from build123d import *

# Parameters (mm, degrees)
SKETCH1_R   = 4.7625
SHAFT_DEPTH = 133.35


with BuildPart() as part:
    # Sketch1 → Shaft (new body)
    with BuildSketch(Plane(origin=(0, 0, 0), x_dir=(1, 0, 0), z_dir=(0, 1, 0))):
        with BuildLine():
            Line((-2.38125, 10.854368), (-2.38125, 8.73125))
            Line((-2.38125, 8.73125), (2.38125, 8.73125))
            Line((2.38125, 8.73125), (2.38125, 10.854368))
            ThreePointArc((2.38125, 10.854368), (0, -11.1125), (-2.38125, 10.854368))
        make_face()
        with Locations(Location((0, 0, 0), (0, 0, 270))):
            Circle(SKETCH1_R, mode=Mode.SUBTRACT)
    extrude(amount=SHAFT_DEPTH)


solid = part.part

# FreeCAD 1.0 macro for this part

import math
import FreeCAD as App
import Part
import Sketcher
Q = App.Units.Quantity

doc = App.newDocument("Part")
params = doc.addObject("Spreadsheet::Sheet", "Params")
for row, (alias, value) in enumerate([
    ("sketch1_diameter", "0.375 in"),
    ("sketch1_radius", "0.4375 in"),
    ("sketch1_width", "0.1875 in"),
    ("pad1_length", "5.25 in"),
], start=1):
    params.set(f"A{row}", alias)
    params.set(f"B{row}", "=" + value)
    params.setAlias(f"B{row}", alias)

body = doc.addObject("PartDesign::Body", "Body")

sketch1 = body.newObject("Sketcher::SketchObject", "Sketch")
sketch1.AttachmentSupport = (doc.getObject("XZ_Plane"), [""])
sketch1.MapMode = "FlatFace"
sketch1.addGeometry(Part.LineSegment(App.Vector(-2.4, -8.7, 0), App.Vector(-2.4, -10.9, 0)), False)
sketch1.addGeometry(Part.ArcOfCircle(Part.Circle(App.Vector(0, 0, 0), App.Vector(0, 0, 1), 11.1), math.radians(-78), math.radians(258)), False)
sketch1.addGeometry(Part.LineSegment(App.Vector(2.4, -10.9, 0), App.Vector(2.4, -8.7, 0)), False)
sketch1.addGeometry(Part.LineSegment(App.Vector(2.4, -8.7, 0), App.Vector(-2.4, -8.7, 0)), False)
sketch1.addGeometry(Part.Circle(App.Vector(0, 0, 0), App.Vector(0, 0, 1), 4.8), False)
sketch1.addConstraint(Sketcher.Constraint("Coincident", 0, 2, 1, 2))
sketch1.addConstraint(Sketcher.Constraint("Coincident", 1, 1, 2, 1))
sketch1.addConstraint(Sketcher.Constraint("Coincident", 2, 2, 3, 1))
sketch1.addConstraint(Sketcher.Constraint("Coincident", 3, 2, 0, 1))
sketch1.addConstraint(Sketcher.Constraint("Vertical", 0))
sketch1.addConstraint(Sketcher.Constraint("Vertical", 2))
sketch1.addConstraint(Sketcher.Constraint("Horizontal", 3))
sketch1.addConstraint(Sketcher.Constraint("Coincident", 1, 3, -1, 1))
sketch1.addConstraint(Sketcher.Constraint("Coincident", 4, 3, -1, 1))
sketch1.addConstraint(Sketcher.Constraint("Horizontal", 0, 2, 1, 1))
sketch1.addConstraint(Sketcher.Constraint("Diameter", 4, Q("0.375 in")))
sketch1.addConstraint(Sketcher.Constraint("Radius", 1, Q("0.4375 in")))
sketch1.addConstraint(Sketcher.Constraint("DistanceX", 3, 2, 3, 1, Q("0.1875 in")))
sketch1.addConstraint(Sketcher.Constraint("DistanceY", 2, 2, -1, 1, Q("0.34375 in")))
sketch1.setExpression("Constraints[10]", "Params.sketch1_diameter")
sketch1.setExpression("Constraints[11]", "Params.sketch1_radius")
sketch1.setExpression("Constraints[12]", "Params.sketch1_width")
pad1 = body.newObject("PartDesign::Pad", "Pad")
pad1.Profile = sketch1
pad1.setExpression("Length", "Params.pad1_length")
pad1.Reversed = True

doc.recompute()
